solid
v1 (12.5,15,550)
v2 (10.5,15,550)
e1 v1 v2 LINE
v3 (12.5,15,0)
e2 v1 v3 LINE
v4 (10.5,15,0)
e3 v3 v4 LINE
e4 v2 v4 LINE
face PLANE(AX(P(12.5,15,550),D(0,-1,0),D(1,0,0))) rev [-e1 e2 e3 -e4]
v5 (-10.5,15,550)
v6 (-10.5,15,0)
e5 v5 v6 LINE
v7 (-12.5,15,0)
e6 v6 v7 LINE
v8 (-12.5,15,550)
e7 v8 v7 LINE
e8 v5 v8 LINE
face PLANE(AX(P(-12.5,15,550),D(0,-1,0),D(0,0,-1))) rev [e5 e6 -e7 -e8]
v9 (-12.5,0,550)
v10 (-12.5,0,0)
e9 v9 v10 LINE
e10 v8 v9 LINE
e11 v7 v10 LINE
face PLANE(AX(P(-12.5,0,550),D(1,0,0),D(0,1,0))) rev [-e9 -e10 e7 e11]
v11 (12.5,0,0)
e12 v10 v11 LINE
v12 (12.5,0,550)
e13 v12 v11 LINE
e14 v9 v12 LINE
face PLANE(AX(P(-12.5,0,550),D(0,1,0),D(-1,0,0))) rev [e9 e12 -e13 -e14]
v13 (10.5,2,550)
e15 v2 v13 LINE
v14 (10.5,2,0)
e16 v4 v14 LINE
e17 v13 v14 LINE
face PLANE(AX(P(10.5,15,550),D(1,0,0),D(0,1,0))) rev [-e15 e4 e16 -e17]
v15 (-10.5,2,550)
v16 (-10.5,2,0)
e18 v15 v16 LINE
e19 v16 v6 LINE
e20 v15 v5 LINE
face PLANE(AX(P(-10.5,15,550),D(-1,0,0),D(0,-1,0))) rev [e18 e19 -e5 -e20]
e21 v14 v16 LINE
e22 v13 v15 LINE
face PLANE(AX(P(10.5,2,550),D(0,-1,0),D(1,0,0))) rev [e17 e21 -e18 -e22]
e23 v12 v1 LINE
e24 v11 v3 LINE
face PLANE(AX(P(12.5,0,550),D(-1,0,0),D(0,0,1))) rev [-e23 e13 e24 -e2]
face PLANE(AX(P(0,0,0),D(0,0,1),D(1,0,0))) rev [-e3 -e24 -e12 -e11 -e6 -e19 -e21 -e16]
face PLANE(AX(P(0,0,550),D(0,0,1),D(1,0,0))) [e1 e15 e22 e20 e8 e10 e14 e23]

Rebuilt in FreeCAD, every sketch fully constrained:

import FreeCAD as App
import Part
import Sketcher

V = App.Vector
Q = App.Units.Quantity


def add_polygon(sketch, points):
    """Adds a closed chain of lines whose ends are joined by coincident constraints."""
    first, n = sketch.GeometryCount, len(points)
    for a, b in zip(points, points[1:] + points[:1]):
        sketch.addGeometry(Part.LineSegment(App.Vector(*a, 0), App.Vector(*b, 0)), False)
    for i in range(n):
        sketch.addConstraint(Sketcher.Constraint("Coincident", first + i, 2, first + (i + 1) % n, 1))

doc = App.newDocument("Part")
body = doc.addObject("PartDesign::Body", "Body")

sketch1 = body.newObject("Sketcher::SketchObject", "Sketch")
sketch1.AttachmentSupport = (doc.getObject("XY_Plane"), [""])
sketch1.MapMode = "FlatFace"
add_polygon(sketch1, [(-12.5, 0), (12.5, 0), (12.5, 15), (10.5, 15), (10.5, 2), (-10.5, 2), (-10.5, 15), (-12.5, 15)])
sketch1.addConstraint(Sketcher.Constraint("Horizontal", 0))
sketch1.addConstraint(Sketcher.Constraint("Vertical", 1))
sketch1.addConstraint(Sketcher.Constraint("Horizontal", 2))
sketch1.addConstraint(Sketcher.Constraint("Vertical", 3))
sketch1.addConstraint(Sketcher.Constraint("Horizontal", 4))
sketch1.addConstraint(Sketcher.Constraint("Vertical", 5))
sketch1.addConstraint(Sketcher.Constraint("Horizontal", 6))
sketch1.addConstraint(Sketcher.Constraint("Vertical", 7))
sketch1.addConstraint(Sketcher.Constraint("Symmetric", 0, 2, 7, 2, -1, 1))
sketch1.addConstraint(Sketcher.Constraint("Symmetric", 2, 2, 5, 2, -2))
sketch1.addConstraint(Sketcher.Constraint("DistanceX", 0, 1, 0, 2, Q("25 mm")))
sketch1.addConstraint(Sketcher.Constraint("DistanceX", 2, 2, 2, 1, Q("2 mm")))
sketch1.addConstraint(Sketcher.Constraint("DistanceY", 1, 1, 1, 2, Q("15 mm")))
sketch1.addConstraint(Sketcher.Constraint("DistanceY", 3, 2, 3, 1, Q("13 mm")))
pad1 = body.newObject("PartDesign::Pad", "Pad")
pad1.Profile = sketch1
pad1.Length = 550

doc.recompute()
